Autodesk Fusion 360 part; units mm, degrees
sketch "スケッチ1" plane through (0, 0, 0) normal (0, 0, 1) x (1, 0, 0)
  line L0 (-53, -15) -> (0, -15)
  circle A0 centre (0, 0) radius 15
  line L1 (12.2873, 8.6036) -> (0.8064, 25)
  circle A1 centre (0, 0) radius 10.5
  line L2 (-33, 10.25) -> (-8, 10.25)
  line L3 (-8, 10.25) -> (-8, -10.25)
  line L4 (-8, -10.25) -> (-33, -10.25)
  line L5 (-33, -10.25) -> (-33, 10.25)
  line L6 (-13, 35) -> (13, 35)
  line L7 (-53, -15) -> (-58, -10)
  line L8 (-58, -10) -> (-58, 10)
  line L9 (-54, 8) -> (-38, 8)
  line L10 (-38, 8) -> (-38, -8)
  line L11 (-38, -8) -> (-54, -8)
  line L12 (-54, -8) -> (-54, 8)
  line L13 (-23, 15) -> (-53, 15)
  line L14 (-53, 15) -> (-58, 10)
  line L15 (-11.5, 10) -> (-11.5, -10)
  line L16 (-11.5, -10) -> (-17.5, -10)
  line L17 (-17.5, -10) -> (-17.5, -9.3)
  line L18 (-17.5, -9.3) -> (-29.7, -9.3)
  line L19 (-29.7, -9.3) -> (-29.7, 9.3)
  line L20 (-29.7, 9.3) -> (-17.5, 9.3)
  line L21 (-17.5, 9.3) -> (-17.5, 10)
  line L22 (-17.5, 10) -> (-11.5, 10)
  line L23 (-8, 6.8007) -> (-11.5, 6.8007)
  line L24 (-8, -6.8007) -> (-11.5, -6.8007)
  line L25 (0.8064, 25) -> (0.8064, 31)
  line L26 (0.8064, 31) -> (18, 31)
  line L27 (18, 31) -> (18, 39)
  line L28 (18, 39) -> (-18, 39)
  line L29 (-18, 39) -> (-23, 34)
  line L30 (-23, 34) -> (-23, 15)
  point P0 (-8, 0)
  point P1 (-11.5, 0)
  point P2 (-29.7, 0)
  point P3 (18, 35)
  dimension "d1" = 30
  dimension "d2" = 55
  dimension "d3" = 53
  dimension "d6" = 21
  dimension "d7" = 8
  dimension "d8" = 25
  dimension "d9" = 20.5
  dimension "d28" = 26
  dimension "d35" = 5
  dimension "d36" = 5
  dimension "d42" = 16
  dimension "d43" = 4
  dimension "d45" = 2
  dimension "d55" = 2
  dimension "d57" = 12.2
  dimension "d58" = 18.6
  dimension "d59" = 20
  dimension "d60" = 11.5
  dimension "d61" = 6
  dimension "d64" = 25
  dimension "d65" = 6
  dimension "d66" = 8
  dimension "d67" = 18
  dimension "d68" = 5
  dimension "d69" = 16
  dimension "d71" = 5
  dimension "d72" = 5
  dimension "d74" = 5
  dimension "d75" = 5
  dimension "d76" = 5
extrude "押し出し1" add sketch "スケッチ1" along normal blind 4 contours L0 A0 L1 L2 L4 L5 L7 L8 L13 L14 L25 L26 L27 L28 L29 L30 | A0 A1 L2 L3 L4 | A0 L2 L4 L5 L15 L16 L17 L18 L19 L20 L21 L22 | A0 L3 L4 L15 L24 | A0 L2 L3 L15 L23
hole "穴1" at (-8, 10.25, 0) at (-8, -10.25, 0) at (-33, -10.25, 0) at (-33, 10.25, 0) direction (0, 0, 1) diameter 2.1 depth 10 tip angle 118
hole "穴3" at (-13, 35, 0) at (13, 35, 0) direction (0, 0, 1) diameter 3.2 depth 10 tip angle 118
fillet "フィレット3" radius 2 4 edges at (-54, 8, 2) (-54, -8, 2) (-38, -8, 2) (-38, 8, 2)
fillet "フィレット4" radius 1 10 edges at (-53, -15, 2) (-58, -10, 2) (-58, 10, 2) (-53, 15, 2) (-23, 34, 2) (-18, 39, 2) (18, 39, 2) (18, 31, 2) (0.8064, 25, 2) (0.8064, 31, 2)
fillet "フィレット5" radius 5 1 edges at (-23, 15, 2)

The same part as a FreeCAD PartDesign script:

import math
import FreeCAD as App
import Part
import Sketcher
from FreeCAD import Vector
Q = App.Units.Quantity


def edges_at(feature, points):
    """Names of the edges that pass closest to the given points."""
    edges = feature.Shape.Edges
    near = lambda p: min(range(len(edges)), key=lambda i: edges[i].distToShape(Part.Vertex(*p))[0])
    return sorted({f"Edge{near(p) + 1}" for p in points})


def add_polygon(sketch, points):
    """Adds a closed chain of lines whose ends are joined by coincident constraints."""
    first, n = sketch.GeometryCount, len(points)
    for a, b in zip(points, points[1:] + points[:1]):
        sketch.addGeometry(Part.LineSegment(App.Vector(*a, 0), App.Vector(*b, 0)), False)
    for i in range(n):
        sketch.addConstraint(Sketcher.Constraint("Coincident", first + i, 2, first + (i + 1) % n, 1))

doc = App.newDocument("Part")
body = doc.addObject("PartDesign::Body", "Body")

sketch1 = body.newObject("Sketcher::SketchObject", "Sketch")
sketch1.AttachmentSupport = (doc.getObject("XY_Plane"), [""])
sketch1.MapMode = "FlatFace"
sketch1.addGeometry(Part.LineSegment(Vector(-58, -10, 0), Vector(-53, -15, 0)), False)
sketch1.addGeometry(Part.LineSegment(Vector(-53, -15, 0), Vector(0, -15, 0)), False)
sketch1.addGeometry(Part.ArcOfCircle(Part.Circle(Vector(0, 0, 0), Vector(0, 0, 1), 15), math.radians(-90), math.radians(35)), False)
sketch1.addGeometry(Part.LineSegment(Vector(12.3, 8.6, 0), Vector(0.8, 25, 0)), False)
sketch1.addGeometry(Part.LineSegment(Vector(0.8, 25, 0), Vector(0.8, 31, 0)), False)
sketch1.addGeometry(Part.LineSegment(Vector(0.8, 31, 0), Vector(18, 31, 0)), False)
sketch1.addGeometry(Part.LineSegment(Vector(18, 31, 0), Vector(18, 39, 0)), False)
sketch1.addGeometry(Part.LineSegment(Vector(18, 39, 0), Vector(-18, 39, 0)), False)
sketch1.addGeometry(Part.LineSegment(Vector(-18, 39, 0), Vector(-23, 34, 0)), False)
sketch1.addGeometry(Part.LineSegment(Vector(-23, 34, 0), Vector(-23, 15, 0)), False)
sketch1.addGeometry(Part.LineSegment(Vector(-23, 15, 0), Vector(-53, 15, 0)), False)
sketch1.addGeometry(Part.LineSegment(Vector(-53, 15, 0), Vector(-58, 10, 0)), False)
sketch1.addGeometry(Part.LineSegment(Vector(-58, 10, 0), Vector(-58, -10, 0)), False)
add_polygon(sketch1, [(-54, -8), (-54, 8), (-38, 8), (-38, -8)])
sketch1.addGeometry(Part.LineSegment(Vector(-8, -6.8, 0), Vector(-11.5, -6.8, 0)), False)
sketch1.addGeometry(Part.LineSegment(Vector(-11.5, -6.8, 0), Vector(-11.5, -10, 0)), False)
sketch1.addGeometry(Part.LineSegment(Vector(-11.5, -10, 0), Vector(-17.5, -10, 0)), False)
sketch1.addGeometry(Part.LineSegment(Vector(-17.5, -10, 0), Vector(-17.5, -9.3, 0)), False)
sketch1.addGeometry(Part.LineSegment(Vector(-17.5, -9.3, 0), Vector(-29.7, -9.3, 0)), False)
sketch1.addGeometry(Part.LineSegment(Vector(-29.7, -9.3, 0), Vector(-29.7, 9.3, 0)), False)
sketch1.addGeometry(Part.LineSegment(Vector(-29.7, 9.3, 0), Vector(-17.5, 9.3, 0)), False)
sketch1.addGeometry(Part.LineSegment(Vector(-17.5, 9.3, 0), Vector(-17.5, 10, 0)), False)
sketch1.addGeometry(Part.LineSegment(Vector(-17.5, 10, 0), Vector(-11.5, 10, 0)), False)
sketch1.addGeometry(Part.LineSegment(Vector(-11.5, 10, 0), Vector(-11.5, 6.8, 0)), False)
sketch1.addGeometry(Part.LineSegment(Vector(-11.5, 6.8, 0), Vector(-8, 6.8, 0)), False)
sketch1.addGeometry(Part.ArcOfCircle(Part.Circle(Vector(0, 0, 0), Vector(0, 0, 1), 10.5), math.radians(-140), math.radians(140)), False)
sketch1.addConstraint([
    Sketcher.Constraint("Coincident", 0, 2, 1, 1),
    Sketcher.Constraint("Tangent", 1, 2, 2, 1),
    Sketcher.Constraint("Tangent", 2, 2, 3, 1),
    Sketcher.Constraint("Coincident", 3, 2, 4, 1),
    Sketcher.Constraint("Coincident", 4, 2, 5, 1),
    Sketcher.Constraint("Coincident", 5, 2, 6, 1),
    Sketcher.Constraint("Coincident", 6, 2, 7, 1),
    Sketcher.Constraint("Coincident", 7, 2, 8, 1),
    Sketcher.Constraint("Coincident", 8, 2, 9, 1),
    Sketcher.Constraint("Coincident", 9, 2, 10, 1),
    Sketcher.Constraint("Coincident", 10, 2, 11, 1),
    Sketcher.Constraint("Coincident", 11, 2, 12, 1),
    Sketcher.Constraint("Coincident", 12, 2, 0, 1),
    Sketcher.Constraint("Coincident", 17, 2, 18, 1),
    Sketcher.Constraint("Coincident", 18, 2, 19, 1),
    Sketcher.Constraint("Coincident", 19, 2, 20, 1),
    Sketcher.Constraint("Coincident", 20, 2, 21, 1),
    Sketcher.Constraint("Coincident", 21, 2, 22, 1),
    Sketcher.Constraint("Coincident", 22, 2, 23, 1),
    Sketcher.Constraint("Coincident", 23, 2, 24, 1),
    Sketcher.Constraint("Coincident", 24, 2, 25, 1),
    Sketcher.Constraint("Coincident", 25, 2, 26, 1),
    Sketcher.Constraint("Coincident", 26, 2, 27, 1),
    Sketcher.Constraint("Coincident", 27, 2, 28, 2),
    Sketcher.Constraint("Coincident", 28, 1, 17, 1),
    Sketcher.Constraint("Horizontal", 1),
    Sketcher.Constraint("Vertical", 4),
    Sketcher.Constraint("Horizontal", 5),
    Sketcher.Constraint("Vertical", 6),
    Sketcher.Constraint("Horizontal", 7),
    Sketcher.Constraint("Vertical", 9),
    Sketcher.Constraint("Horizontal", 10),
    Sketcher.Constraint("Vertical", 12),
    Sketcher.Constraint("Vertical", 13),
    Sketcher.Constraint("Horizontal", 14),
    Sketcher.Constraint("Vertical", 15),
    Sketcher.Constraint("Horizontal", 16),
    Sketcher.Constraint("Horizontal", 17),
    Sketcher.Constraint("Vertical", 18),
    Sketcher.Constraint("Horizontal", 19),
    Sketcher.Constraint("Vertical", 20),
    Sketcher.Constraint("Horizontal", 21),
    Sketcher.Constraint("Vertical", 22),
    Sketcher.Constraint("Horizontal", 23),
    Sketcher.Constraint("Vertical", 24),
    Sketcher.Constraint("Horizontal", 25),
    Sketcher.Constraint("Vertical", 26),
    Sketcher.Constraint("Horizontal", 27),
    Sketcher.Constraint("Coincident", 2, 3, -1, 1),
    Sketcher.Constraint("Coincident", 28, 3, -1, 1),
    Sketcher.Constraint("Symmetric", 0, 2, 10, 2, -1),
    Sketcher.Constraint("Symmetric", 20, 2, 23, 2, -1),
    Sketcher.Constraint("Symmetric", 18, 2, 25, 2, -1),
    Sketcher.Constraint("Perpendicular", 0, 8),
    Sketcher.Constraint("Parallel", 8, 11),
    Sketcher.Constraint("Horizontal", 12, 2, 18, 2),
    Sketcher.Constraint("Horizontal", 11, 2, 24, 2),
    Sketcher.Constraint("Vertical", 27, 2, 28, 1),
    Sketcher.Constraint("Equal", 25, 4),
    Sketcher.Constraint("Equal", 16, 13),
    Sketcher.Constraint("Equal", 0, 8),
    Sketcher.Constraint("Radius", 2, Q("15 mm")),
    Sketcher.Constraint("Radius", 28, Q("10.5 mm")),
    Sketcher.Constraint("DistanceX", 1, 1, 1, 2, Q("53 mm")),
    Sketcher.Constraint("DistanceX", 10, 2, 10, 1, Q("30 mm")),
    Sketcher.Constraint("DistanceX", 14, 1, 14, 2, Q("16 mm")),
    Sketcher.Constraint("DistanceX", 19, 2, 19, 1, Q("6 mm")),
    Sketcher.Constraint("DistanceY", 6, 1, 6, 2, Q("8 mm")),
    Sketcher.Constraint("DistanceY", 12, 2, 12, 1, Q("20 mm")),
    Sketcher.Constraint("DistanceX", 21, 2, 21, 1, Q("12.2 mm")),
    Sketcher.Constraint("DistanceY", 22, 1, 22, 2, Q("18.6 mm")),
    Sketcher.Constraint("DistanceY", -1, 1, 3, 2, Q("25 mm")),
    Sketcher.Constraint("DistanceX", -1, 1, 5, 2, Q("18 mm")),
    Sketcher.Constraint("DistanceY", -1, 1, 13, 2, Q("8 mm")),
    Sketcher.Constraint("DistanceX", 27, 2, -1, 1, Q("8 mm")),
    Sketcher.Constraint("DistanceX", 11, 2, 13, 2, Q("4 mm")),
    Sketcher.Constraint("DistanceX", 17, 2, -1, 1, Q("11.5 mm")),
    Sketcher.Constraint("Angle", 3, Q("125 deg")),
])
pad1 = body.newObject("PartDesign::Pad", "Pad")
pad1.Profile = sketch1
pad1.Length = 4

sketch2 = body.newObject("Sketcher::SketchObject", "Sketch001")
sketch2.AttachmentSupport = (doc.getObject("XY_Plane"), [""])
sketch2.MapMode = "FlatFace"
sketch2.addGeometry([
    Part.Circle(Vector(-8, 10.2, 0), Vector(0, 0, 1), 1.1),
    Part.Circle(Vector(-8, -10.2, 0), Vector(0, 0, 1), 1.1),
    Part.Circle(Vector(-33, -10.2, 0), Vector(0, 0, 1), 1.1),
    Part.Circle(Vector(-33, 10.2, 0), Vector(0, 0, 1), 1.1),
], False)
sketch2.addConstraint([
    Sketcher.Constraint("Equal", 0, 1),
    Sketcher.Constraint("Equal", 1, 2),
    Sketcher.Constraint("Equal", 2, 3),
    Sketcher.Constraint("Symmetric", 0, 3, 1, 3, -1),
    Sketcher.Constraint("Symmetric", 2, 3, 3, 3, -1),
    Sketcher.Constraint("Horizontal", 1, 3, 2, 3),
    Sketcher.Constraint("Diameter", 0, Q("2.1 mm")),
    Sketcher.Constraint("DistanceX", 0, 3, -1, 1, Q("8 mm")),
    Sketcher.Constraint("DistanceX", 2, 3, -1, 1, Q("33 mm")),
    Sketcher.Constraint("DistanceY", 1, 3, 0, 3, Q("20.5 mm")),
])
doc.recompute()
hole = body.newObject("PartDesign::Hole", "Hole")
hole.Profile = sketch2
hole.ThreadType = "None"
hole.Diameter = 2.1
hole.DepthType = "Dimension"
hole.Depth = 10
hole.DrillPoint = "Angled"
hole.DrillPointAngle = 118
hole.Reversed = True

sketch3 = body.newObject("Sketcher::SketchObject", "Sketch002")
sketch3.AttachmentSupport = (doc.getObject("XY_Plane"), [""])
sketch3.MapMode = "FlatFace"
sketch3.addGeometry([
    Part.Circle(Vector(-13, 35, 0), Vector(0, 0, 1), 1.6),
    Part.Circle(Vector(13, 35, 0), Vector(0, 0, 1), 1.6),
], False)
sketch3.addConstraint([
    Sketcher.Constraint("Equal", 0, 1),
    Sketcher.Constraint("Symmetric", 0, 3, 1, 3, -2),
    Sketcher.Constraint("Diameter", 0, Q("3.2 mm")),
    Sketcher.Constraint("DistanceX", 0, 3, -1, 1, Q("13 mm")),
    Sketcher.Constraint("DistanceY", -1, 1, 0, 3, Q("35 mm")),
])
doc.recompute()
hole2 = body.newObject("PartDesign::Hole", "Hole001")
hole2.Profile = sketch3
hole2.ThreadType = "None"
hole2.Diameter = 3.2
hole2.DepthType = "Dimension"
hole2.Depth = 10
hole2.DrillPoint = "Angled"
hole2.DrillPointAngle = 118
hole2.Reversed = True
doc.recompute()

fillet = body.newObject("PartDesign::Fillet", "Fillet")
fillet.Base = (hole2, edges_at(hole2, [
    (-54, 8, 2),
    (-54, -8, 2),
    (-38, -8, 2),
    (-38, 8, 2),
]))
fillet.Radius = 2
doc.recompute()

fillet2 = body.newObject("PartDesign::Fillet", "Fillet001")
fillet2.Base = (fillet, edges_at(fillet, [
    (-53, -15, 2),
    (-58, -10, 2),
    (-58, 10, 2),
    (-53, 15, 2),
    (-23, 34, 2),
    (-18, 39, 2),
    (18, 39, 2),
    (18, 31, 2),
    (0.806, 25, 2),
    (0.806, 31, 2),
]))
fillet2.Radius = 1
doc.recompute()

fillet3 = body.newObject("PartDesign::Fillet", "Fillet002")
fillet3.Base = (fillet2, edges_at(fillet2, [(-23, 15, 2)]))
fillet3.Radius = 5

doc.recompute()
